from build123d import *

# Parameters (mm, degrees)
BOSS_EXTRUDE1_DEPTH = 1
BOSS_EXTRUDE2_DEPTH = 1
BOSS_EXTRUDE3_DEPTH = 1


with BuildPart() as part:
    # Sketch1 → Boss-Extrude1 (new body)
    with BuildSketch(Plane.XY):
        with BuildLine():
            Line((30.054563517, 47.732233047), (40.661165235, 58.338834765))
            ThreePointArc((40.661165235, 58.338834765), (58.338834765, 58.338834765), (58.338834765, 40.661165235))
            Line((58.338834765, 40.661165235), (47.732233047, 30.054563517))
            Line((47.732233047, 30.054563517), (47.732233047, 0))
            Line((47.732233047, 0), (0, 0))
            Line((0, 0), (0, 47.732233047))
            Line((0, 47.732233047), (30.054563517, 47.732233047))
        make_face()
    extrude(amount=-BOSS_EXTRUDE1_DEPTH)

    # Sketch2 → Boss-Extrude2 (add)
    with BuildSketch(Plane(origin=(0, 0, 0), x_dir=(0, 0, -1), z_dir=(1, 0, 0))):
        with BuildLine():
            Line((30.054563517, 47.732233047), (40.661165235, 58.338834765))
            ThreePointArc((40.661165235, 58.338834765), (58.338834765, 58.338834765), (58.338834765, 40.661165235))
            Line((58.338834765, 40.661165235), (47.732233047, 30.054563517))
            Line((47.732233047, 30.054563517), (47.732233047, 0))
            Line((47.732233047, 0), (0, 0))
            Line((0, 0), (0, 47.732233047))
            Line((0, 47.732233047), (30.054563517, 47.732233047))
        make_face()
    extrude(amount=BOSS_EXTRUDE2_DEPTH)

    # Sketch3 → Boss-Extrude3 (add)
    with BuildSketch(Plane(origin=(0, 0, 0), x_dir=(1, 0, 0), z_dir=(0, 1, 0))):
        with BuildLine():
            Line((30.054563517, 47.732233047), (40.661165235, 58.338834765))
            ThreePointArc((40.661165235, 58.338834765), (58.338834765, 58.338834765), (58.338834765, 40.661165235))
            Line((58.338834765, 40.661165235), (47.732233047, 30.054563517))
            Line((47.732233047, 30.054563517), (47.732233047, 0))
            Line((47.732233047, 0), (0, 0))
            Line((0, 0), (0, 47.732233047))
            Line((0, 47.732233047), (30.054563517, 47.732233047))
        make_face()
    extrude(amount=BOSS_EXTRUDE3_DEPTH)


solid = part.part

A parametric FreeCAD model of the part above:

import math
import FreeCAD as App
import Part
import Sketcher
from FreeCAD import Vector

doc = App.newDocument("Part")
body = doc.addObject("PartDesign::Body", "Body")

# Sketch on XY plane
sketch1 = doc.addObject("Sketcher::SketchObject", "Sketch")
body.addObject(sketch1)
sketch1.AttachmentSupport = (doc.XY_Plane, [""])
sketch1.MapMode = "FlatFace"
sketch1.addGeometry([
    Part.LineSegment(Vector(41, 58, 0), Vector(30, 48, 0)),  # 0
    Part.LineSegment(Vector(30, 48, 0), Vector(0, 48, 0)),  # 1
    Part.LineSegment(Vector(0, 48, 0), Vector(0, 0, 0)),  # 2
    Part.LineSegment(Vector(0, 0, 0), Vector(48, 0, 0)),  # 3
    Part.LineSegment(Vector(48, 0, 0), Vector(48, 30, 0)),  # 4
    Part.LineSegment(Vector(48, 30, 0), Vector(58, 41, 0)),  # 5
    Part.ArcOfCircle(Part.Circle(Vector(50, 50, 0), Vector(0, 0, 1), 12), math.radians(-45), math.radians(135)),  # 6
], False)
sketch1.addConstraint([
    Sketcher.Constraint("Coincident", 0, 2, 1, 1),
    Sketcher.Constraint("Coincident", 1, 2, 2, 1),
    Sketcher.Constraint("Coincident", 2, 2, 3, 1),
    Sketcher.Constraint("Coincident", 3, 2, 4, 1),
    Sketcher.Constraint("Coincident", 4, 2, 5, 1),
    Sketcher.Constraint("Tangent", 5, 2, 6, 1),
    Sketcher.Constraint("Tangent", 6, 2, 0, 1),
    Sketcher.Constraint("Horizontal", 1),
    Sketcher.Constraint("Vertical", 2),
    Sketcher.Constraint("Horizontal", 3),
    Sketcher.Constraint("Vertical", 4),
    Sketcher.Constraint("Coincident", 2, 2, -1, 1),
    Sketcher.Constraint("Parallel", 0, 5),
    Sketcher.Constraint("Equal", 3, 2),
    Sketcher.Constraint("Equal", 1, 4),
    Sketcher.Constraint("Equal", 0, 5),
    Sketcher.Constraint("Radius", 6, 12.5),
    Sketcher.Constraint("Distance", 0, 15.0),
    Sketcher.Constraint("DistanceX", -1, 1, 6, 3, 49.5),
])
pad1 = doc.addObject("PartDesign::Pad", "Pad")
body.addObject(pad1)
pad1.Profile = sketch1
pad1.Length = 1
pad1.Reversed = True

# Sketch on YZ plane
sketch2 = doc.addObject("Sketcher::SketchObject", "Sketch001")
body.addObject(sketch2)
sketch2.AttachmentSupport = (doc.YZ_Plane, [""])
sketch2.MapMode = "FlatFace"
sketch2.addGeometry([
    Part.LineSegment(Vector(58, -41, 0), Vector(48, -30, 0)),  # 0
    Part.LineSegment(Vector(48, -30, 0), Vector(48, 0, 0)),  # 1
    Part.LineSegment(Vector(48, 0, 0), Vector(0, 0, 0)),  # 2
    Part.LineSegment(Vector(0, 0, 0), Vector(0, -48, 0)),  # 3
    Part.LineSegment(Vector(0, -48, 0), Vector(30, -48, 0)),  # 4
    Part.LineSegment(Vector(30, -48, 0), Vector(41, -58, 0)),  # 5
    Part.ArcOfCircle(Part.Circle(Vector(50, -50, 0), Vector(0, 0, 1), 12), math.radians(-135), math.radians(45)),  # 6
], False)
sketch2.addConstraint([
    Sketcher.Constraint("Coincident", 0, 2, 1, 1),
    Sketcher.Constraint("Coincident", 1, 2, 2, 1),
    Sketcher.Constraint("Coincident", 2, 2, 3, 1),
    Sketcher.Constraint("Coincident", 3, 2, 4, 1),
    Sketcher.Constraint("Coincident", 4, 2, 5, 1),
    Sketcher.Constraint("Tangent", 5, 2, 6, 1),
    Sketcher.Constraint("Tangent", 6, 2, 0, 1),
    Sketcher.Constraint("Vertical", 1),
    Sketcher.Constraint("Horizontal", 2),
    Sketcher.Constraint("Vertical", 3),
    Sketcher.Constraint("Horizontal", 4),
    Sketcher.Constraint("Coincident", 2, 2, -1, 1),
    Sketcher.Constraint("Parallel", 0, 5),
    Sketcher.Constraint("Equal", 4, 1),
    Sketcher.Constraint("Equal", 2, 3),
    Sketcher.Constraint("Equal", 0, 5),
    Sketcher.Constraint("Radius", 6, 12.5),
    Sketcher.Constraint("Distance", 0, 15.0),
    Sketcher.Constraint("DistanceX", -1, 1, 6, 3, 49.5),
])
pad2 = doc.addObject("PartDesign::Pad", "Pad001")
body.addObject(pad2)
pad2.Profile = sketch2
pad2.Length = 1

# Sketch on XZ plane
sketch3 = doc.addObject("Sketcher::SketchObject", "Sketch002")
body.addObject(sketch3)
sketch3.AttachmentSupport = (doc.XZ_Plane, [""])
sketch3.MapMode = "FlatFace"
sketch3.addGeometry([
    Part.LineSegment(Vector(41, -58, 0), Vector(30, -48, 0)),  # 0
    Part.LineSegment(Vector(30, -48, 0), Vector(0, -48, 0)),  # 1
    Part.LineSegment(Vector(0, -48, 0), Vector(0, 0, 0)),  # 2
    Part.LineSegment(Vector(0, 0, 0), Vector(48, 0, 0)),  # 3
    Part.LineSegment(Vector(48, 0, 0), Vector(48, -30, 0)),  # 4
    Part.LineSegment(Vector(48, -30, 0), Vector(58, -41, 0)),  # 5
    Part.ArcOfCircle(Part.Circle(Vector(50, -50, 0), Vector(0, 0, 1), 12), math.radians(-135), math.radians(45)),  # 6
], False)
sketch3.addConstraint([
    Sketcher.Constraint("Coincident", 0, 2, 1, 1),
    Sketcher.Constraint("Coincident", 1, 2, 2, 1),
    Sketcher.Constraint("Coincident", 2, 2, 3, 1),
    Sketcher.Constraint("Coincident", 3, 2, 4, 1),
    Sketcher.Constraint("Coincident", 4, 2, 5, 1),
    Sketcher.Constraint("Tangent", 5, 2, 6, 2),
    Sketcher.Constraint("Tangent", 6, 1, 0, 1),
    Sketcher.Constraint("Horizontal", 1),
    Sketcher.Constraint("Vertical", 2),
    Sketcher.Constraint("Horizontal", 3),
    Sketcher.Constraint("Vertical", 4),
    Sketcher.Constraint("Coincident", 2, 2, -1, 1),
    Sketcher.Constraint("Parallel", 0, 5),
    Sketcher.Constraint("Equal", 3, 2),
    Sketcher.Constraint("Equal", 1, 4),
    Sketcher.Constraint("Equal", 0, 5),
    Sketcher.Constraint("Radius", 6, 12.5),
    Sketcher.Constraint("Distance", 0, 15.0),
    Sketcher.Constraint("DistanceX", -1, 1, 6, 3, 49.5),
])
pad3 = doc.addObject("PartDesign::Pad", "Pad002")
body.addObject(pad3)
pad3.Profile = sketch3
pad3.Length = 1
pad3.Reversed = True

doc.recompute()
